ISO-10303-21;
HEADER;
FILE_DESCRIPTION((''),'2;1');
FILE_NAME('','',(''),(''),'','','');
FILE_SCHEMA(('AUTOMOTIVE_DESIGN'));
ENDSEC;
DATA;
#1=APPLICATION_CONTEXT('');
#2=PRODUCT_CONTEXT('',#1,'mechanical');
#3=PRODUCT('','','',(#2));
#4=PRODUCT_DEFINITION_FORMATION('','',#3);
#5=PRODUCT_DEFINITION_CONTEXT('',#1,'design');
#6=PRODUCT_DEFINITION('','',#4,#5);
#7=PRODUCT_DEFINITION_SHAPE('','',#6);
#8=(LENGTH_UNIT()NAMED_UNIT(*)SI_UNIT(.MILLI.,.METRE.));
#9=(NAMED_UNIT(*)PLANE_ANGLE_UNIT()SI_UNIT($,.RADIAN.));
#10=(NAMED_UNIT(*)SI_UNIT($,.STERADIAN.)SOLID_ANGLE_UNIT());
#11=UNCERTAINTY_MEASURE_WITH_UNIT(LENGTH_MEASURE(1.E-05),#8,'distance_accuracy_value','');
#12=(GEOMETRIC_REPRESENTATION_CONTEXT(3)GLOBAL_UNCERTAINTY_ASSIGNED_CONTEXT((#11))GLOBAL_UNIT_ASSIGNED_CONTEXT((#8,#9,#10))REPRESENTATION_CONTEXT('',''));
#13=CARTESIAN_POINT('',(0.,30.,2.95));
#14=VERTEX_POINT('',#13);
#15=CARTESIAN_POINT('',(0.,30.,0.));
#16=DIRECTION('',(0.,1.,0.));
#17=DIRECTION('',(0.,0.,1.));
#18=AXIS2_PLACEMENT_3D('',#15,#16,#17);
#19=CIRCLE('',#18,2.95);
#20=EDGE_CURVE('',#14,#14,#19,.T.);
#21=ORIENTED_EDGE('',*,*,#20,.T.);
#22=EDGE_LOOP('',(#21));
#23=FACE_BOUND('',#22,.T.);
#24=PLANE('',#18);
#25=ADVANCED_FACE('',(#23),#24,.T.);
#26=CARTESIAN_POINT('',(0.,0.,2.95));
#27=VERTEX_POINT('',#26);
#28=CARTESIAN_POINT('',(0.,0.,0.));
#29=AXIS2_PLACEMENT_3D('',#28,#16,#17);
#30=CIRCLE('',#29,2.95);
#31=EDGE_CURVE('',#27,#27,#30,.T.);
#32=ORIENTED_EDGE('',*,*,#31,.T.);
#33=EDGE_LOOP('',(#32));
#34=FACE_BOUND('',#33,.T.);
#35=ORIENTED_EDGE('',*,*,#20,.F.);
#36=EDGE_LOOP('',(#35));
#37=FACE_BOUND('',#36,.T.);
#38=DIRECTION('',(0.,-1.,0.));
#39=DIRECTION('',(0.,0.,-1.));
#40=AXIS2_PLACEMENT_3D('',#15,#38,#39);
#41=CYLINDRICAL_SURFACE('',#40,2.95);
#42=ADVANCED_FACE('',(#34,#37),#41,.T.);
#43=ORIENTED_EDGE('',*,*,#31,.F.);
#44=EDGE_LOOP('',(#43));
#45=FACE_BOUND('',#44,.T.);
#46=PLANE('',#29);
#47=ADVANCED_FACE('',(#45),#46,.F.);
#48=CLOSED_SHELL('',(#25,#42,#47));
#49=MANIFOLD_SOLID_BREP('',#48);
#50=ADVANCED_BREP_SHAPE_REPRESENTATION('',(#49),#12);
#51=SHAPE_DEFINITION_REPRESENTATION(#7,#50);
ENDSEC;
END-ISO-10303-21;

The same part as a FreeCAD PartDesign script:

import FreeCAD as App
import Part
import Sketcher

V = App.Vector

doc = App.newDocument("Part")
body = doc.addObject("PartDesign::Body", "Body")

sketch1 = doc.addObject("Sketcher::SketchObject", "Sketch")
body.addObject(sketch1)
sketch1.AttachmentSupport = (doc.XZ_Plane, [""])
sketch1.MapMode = "FlatFace"
sketch1.addGeometry(Part.Circle(V(0, 0, 0), V(0, 0, 1), 3), False)
sketch1.addConstraint(Sketcher.Constraint("Coincident", 0, 3, -1, 1))
sketch1.addConstraint(Sketcher.Constraint("Diameter", 0, 5.9))
pad1 = doc.addObject("PartDesign::Pad", "Pad")
body.addObject(pad1)
pad1.Profile = sketch1
pad1.Length = 30
pad1.Reversed = True

doc.recompute()
